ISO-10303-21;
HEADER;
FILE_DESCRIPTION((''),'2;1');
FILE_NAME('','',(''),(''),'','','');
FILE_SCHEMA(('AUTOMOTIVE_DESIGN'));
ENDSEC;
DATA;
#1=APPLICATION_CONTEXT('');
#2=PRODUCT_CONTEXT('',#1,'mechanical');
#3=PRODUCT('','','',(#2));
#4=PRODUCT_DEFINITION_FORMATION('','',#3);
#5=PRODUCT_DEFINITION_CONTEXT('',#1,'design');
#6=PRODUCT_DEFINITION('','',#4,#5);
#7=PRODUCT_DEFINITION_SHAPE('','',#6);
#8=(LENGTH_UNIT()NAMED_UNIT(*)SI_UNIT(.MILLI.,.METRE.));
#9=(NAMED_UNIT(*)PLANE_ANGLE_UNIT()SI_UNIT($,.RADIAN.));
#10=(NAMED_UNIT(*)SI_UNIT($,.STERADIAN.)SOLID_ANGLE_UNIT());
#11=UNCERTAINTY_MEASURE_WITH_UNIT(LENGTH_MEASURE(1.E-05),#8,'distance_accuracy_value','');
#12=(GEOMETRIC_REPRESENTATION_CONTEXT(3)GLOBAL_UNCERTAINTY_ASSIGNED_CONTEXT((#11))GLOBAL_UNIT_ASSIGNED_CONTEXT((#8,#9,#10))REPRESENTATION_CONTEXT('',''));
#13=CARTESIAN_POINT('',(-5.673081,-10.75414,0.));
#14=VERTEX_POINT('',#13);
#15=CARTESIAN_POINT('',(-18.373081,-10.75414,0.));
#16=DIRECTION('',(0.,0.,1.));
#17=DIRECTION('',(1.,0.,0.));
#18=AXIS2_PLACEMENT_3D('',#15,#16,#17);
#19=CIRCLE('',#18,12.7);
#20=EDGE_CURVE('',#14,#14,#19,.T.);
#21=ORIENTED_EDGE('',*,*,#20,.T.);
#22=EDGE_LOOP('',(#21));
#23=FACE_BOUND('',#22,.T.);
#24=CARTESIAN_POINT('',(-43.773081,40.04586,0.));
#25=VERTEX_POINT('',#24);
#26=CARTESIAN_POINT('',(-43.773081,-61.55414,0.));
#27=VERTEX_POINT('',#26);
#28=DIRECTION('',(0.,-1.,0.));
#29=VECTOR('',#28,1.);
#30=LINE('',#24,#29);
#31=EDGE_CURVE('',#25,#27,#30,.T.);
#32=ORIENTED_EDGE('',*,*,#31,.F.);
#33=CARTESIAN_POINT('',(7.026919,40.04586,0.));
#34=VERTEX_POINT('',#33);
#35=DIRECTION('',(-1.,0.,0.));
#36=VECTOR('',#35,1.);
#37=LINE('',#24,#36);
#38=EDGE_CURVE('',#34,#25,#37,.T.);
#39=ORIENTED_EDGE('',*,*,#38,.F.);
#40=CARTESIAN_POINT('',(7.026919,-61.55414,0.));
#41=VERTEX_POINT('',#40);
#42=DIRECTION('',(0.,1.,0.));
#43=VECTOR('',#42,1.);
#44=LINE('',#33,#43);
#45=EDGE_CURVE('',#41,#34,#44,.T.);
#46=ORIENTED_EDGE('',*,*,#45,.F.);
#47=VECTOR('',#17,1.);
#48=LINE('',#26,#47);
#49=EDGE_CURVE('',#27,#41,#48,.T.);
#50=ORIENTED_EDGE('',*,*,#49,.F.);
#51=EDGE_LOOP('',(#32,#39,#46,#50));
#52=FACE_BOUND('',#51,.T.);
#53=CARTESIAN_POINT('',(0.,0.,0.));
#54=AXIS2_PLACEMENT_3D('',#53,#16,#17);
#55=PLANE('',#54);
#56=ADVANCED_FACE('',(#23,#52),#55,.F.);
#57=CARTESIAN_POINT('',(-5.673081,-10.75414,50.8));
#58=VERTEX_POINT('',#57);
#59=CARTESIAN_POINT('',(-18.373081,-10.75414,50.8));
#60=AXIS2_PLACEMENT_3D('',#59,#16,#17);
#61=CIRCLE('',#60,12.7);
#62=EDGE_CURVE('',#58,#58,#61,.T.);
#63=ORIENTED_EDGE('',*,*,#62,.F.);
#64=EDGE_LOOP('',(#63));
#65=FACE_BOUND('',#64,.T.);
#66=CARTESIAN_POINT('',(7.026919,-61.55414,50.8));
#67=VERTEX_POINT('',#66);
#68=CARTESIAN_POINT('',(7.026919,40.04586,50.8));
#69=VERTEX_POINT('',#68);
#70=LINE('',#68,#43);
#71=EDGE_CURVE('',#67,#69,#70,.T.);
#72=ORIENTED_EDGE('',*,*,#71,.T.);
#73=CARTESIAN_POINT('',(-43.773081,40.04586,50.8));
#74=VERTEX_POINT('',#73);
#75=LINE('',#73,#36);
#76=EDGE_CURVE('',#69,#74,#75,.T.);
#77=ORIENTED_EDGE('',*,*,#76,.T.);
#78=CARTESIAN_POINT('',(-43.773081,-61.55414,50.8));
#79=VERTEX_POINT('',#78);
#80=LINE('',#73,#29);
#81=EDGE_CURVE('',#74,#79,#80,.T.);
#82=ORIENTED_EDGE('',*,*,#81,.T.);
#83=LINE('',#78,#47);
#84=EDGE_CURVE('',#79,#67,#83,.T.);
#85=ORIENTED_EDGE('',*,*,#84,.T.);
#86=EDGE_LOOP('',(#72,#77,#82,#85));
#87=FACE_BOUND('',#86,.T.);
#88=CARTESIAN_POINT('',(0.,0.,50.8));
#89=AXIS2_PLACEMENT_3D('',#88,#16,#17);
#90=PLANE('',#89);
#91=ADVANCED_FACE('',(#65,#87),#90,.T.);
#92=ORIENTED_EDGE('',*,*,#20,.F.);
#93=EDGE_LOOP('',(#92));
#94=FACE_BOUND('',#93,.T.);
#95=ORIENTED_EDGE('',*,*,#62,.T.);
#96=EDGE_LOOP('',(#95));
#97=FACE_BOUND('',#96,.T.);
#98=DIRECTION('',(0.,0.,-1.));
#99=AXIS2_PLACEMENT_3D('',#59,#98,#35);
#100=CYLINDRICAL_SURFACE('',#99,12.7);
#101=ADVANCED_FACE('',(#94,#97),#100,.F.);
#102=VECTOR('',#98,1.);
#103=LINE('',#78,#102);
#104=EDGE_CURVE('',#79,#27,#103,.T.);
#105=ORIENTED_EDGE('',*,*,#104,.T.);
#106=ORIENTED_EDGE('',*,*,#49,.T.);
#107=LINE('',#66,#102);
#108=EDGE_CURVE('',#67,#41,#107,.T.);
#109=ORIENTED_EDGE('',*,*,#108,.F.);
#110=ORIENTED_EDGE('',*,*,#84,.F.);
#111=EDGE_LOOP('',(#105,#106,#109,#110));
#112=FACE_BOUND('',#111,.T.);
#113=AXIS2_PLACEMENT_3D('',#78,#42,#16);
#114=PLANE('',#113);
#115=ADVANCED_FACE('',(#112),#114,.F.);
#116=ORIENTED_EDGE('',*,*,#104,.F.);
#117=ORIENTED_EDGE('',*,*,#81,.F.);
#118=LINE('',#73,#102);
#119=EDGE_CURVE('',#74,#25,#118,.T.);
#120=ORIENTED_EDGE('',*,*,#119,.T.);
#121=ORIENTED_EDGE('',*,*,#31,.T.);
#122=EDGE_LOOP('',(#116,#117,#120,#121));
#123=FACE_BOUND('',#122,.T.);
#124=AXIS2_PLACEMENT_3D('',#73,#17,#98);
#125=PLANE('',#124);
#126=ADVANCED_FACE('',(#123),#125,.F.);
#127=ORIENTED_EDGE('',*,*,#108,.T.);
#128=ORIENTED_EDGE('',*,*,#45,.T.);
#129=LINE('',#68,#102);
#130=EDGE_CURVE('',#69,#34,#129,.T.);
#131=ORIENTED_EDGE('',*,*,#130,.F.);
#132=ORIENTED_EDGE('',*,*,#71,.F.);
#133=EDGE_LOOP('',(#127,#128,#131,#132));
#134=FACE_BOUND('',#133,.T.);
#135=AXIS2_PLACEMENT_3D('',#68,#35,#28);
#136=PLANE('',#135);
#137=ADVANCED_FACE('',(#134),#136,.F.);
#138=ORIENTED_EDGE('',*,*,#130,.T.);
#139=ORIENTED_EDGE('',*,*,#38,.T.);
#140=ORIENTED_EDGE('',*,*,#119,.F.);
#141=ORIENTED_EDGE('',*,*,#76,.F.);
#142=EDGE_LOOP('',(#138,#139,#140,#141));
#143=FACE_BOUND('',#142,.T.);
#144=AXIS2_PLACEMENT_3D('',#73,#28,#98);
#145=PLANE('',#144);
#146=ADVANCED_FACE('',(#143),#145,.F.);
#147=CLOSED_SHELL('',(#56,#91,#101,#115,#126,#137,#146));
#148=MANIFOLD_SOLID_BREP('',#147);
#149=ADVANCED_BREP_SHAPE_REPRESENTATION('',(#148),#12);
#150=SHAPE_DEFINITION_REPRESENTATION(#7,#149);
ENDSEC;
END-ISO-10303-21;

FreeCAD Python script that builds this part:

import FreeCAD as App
import Part
import Sketcher
from FreeCAD import Vector
Q = App.Units.Quantity


def add_polygon(sketch, points):
    """Adds a closed chain of lines whose ends are joined by coincident constraints."""
    first, n = sketch.GeometryCount, len(points)
    for a, b in zip(points, points[1:] + points[:1]):
        sketch.addGeometry(Part.LineSegment(App.Vector(*a, 0), App.Vector(*b, 0)), False)
    for i in range(n):
        sketch.addConstraint(Sketcher.Constraint("Coincident", first + i, 2, first + (i + 1) % n, 1))

doc = App.newDocument("Part")
body = doc.addObject("PartDesign::Body", "Body")

sketch1 = body.newObject("Sketcher::SketchObject", "Sketch")
sketch1.AttachmentSupport = (doc.getObject("XY_Plane"), [""])
sketch1.MapMode = "FlatFace"
add_polygon(sketch1, [(-44, 40), (-44, -62), (7, -62), (7, 40)])
sketch1.addGeometry(Part.Circle(Vector(-18, -11, 0), Vector(0, 0, 1), 13), False)
sketch1.addConstraint([
    Sketcher.Constraint("Vertical", 0),
    Sketcher.Constraint("Horizontal", 1),
    Sketcher.Constraint("Vertical", 2),
    Sketcher.Constraint("Horizontal", 3),
    Sketcher.Constraint("Diameter", 4, Q("1 in")),
    Sketcher.Constraint("DistanceX", 1, 1, 1, 2, Q("2 in")),
    Sketcher.Constraint("DistanceY", 0, 2, 0, 1, Q("4 in")),
    Sketcher.Constraint("DistanceX", 0, 2, 4, 3, Q("1 in")),
    Sketcher.Constraint("DistanceY", 0, 2, 4, 3, Q("2 in")),
    Sketcher.Constraint("DistanceX", 4, 3, -1, 1, 18.373081),
    Sketcher.Constraint("DistanceY", 4, 3, -1, 1, 10.75414),
])
pad1 = body.newObject("PartDesign::Pad", "Pad")
pad1.Profile = sketch1
pad1.Length = Q("2 in")

doc.recompute()
